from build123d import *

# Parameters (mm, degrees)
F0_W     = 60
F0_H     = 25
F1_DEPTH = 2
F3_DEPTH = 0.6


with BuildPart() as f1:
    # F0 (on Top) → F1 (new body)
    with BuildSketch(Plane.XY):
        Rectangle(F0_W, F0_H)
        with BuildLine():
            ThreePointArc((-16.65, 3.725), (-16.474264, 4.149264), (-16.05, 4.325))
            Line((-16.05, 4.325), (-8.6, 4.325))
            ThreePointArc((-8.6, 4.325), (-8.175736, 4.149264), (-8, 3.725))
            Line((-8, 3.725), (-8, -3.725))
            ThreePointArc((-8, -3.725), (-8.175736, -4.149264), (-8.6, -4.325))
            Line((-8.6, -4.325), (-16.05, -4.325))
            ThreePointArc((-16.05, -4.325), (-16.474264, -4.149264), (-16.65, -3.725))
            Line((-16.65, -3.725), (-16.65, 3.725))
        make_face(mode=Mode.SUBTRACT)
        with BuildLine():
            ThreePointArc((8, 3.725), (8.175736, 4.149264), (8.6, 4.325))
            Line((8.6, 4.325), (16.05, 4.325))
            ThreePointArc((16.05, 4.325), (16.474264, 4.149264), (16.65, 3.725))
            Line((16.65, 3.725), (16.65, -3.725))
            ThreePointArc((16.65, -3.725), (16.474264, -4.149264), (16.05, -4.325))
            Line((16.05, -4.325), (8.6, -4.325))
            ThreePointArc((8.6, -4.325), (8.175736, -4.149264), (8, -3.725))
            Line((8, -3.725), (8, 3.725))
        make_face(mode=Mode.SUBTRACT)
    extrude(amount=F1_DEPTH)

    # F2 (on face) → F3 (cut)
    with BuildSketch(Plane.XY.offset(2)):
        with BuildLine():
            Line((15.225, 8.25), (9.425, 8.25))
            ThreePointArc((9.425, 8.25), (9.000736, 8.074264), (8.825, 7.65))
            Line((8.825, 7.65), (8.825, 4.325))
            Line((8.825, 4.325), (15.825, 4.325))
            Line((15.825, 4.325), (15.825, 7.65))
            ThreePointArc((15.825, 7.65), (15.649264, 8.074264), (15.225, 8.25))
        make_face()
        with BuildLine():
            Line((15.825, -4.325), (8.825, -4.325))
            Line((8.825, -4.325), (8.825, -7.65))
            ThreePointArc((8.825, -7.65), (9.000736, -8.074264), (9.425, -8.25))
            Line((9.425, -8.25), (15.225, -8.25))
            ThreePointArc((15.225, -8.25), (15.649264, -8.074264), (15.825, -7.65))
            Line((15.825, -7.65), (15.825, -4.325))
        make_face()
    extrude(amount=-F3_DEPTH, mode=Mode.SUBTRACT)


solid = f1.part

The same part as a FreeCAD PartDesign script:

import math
import FreeCAD as App
import Part
import Sketcher

V = App.Vector
Q = App.Units.Quantity


def add_polygon(sketch, points):
    """Adds a closed chain of lines whose ends are joined by coincident constraints."""
    first, n = sketch.GeometryCount, len(points)
    for a, b in zip(points, points[1:] + points[:1]):
        sketch.addGeometry(Part.LineSegment(App.Vector(*a, 0), App.Vector(*b, 0)), False)
    for i in range(n):
        sketch.addConstraint(Sketcher.Constraint("Coincident", first + i, 2, first + (i + 1) % n, 1))

doc = App.newDocument("Part")
body = doc.addObject("PartDesign::Body", "Body")

# Sketch on XY plane
sketch1 = body.newObject("Sketcher::SketchObject", "Sketch")
sketch1.AttachmentSupport = (doc.getObject("XY_Plane"), [""])
sketch1.MapMode = "FlatFace"
add_polygon(sketch1, [(-30, 12.5), (-30, -12.5), (30, -12.5), (30, 12.5)])  # lines 0-3
sketch1.addGeometry(Part.LineSegment(V(-16.6, -3.7, 0), V(-16.6, 3.7, 0)), False)  # 4
sketch1.addGeometry(Part.ArcOfCircle(Part.Circle(V(-16, 3.7, 0), V(0, 0, 1), 0.6), math.radians(90), math.radians(180)), False)  # 5
sketch1.addGeometry(Part.LineSegment(V(-16.1, 4.3, 0), V(-8.6, 4.3, 0)), False)  # 6
sketch1.addGeometry(Part.ArcOfCircle(Part.Circle(V(-8.6, 3.7, 0), V(0, 0, 1), 0.6), math.radians(0), math.radians(90)), False)  # 7
sketch1.addGeometry(Part.LineSegment(V(-8, 3.7, 0), V(-8, -3.7, 0)), False)  # 8
sketch1.addGeometry(Part.ArcOfCircle(Part.Circle(V(-8.6, -3.7, 0), V(0, 0, 1), 0.6), math.radians(-90), math.radians(0)), False)  # 9
sketch1.addGeometry(Part.LineSegment(V(-8.6, -4.3, 0), V(-16.1, -4.3, 0)), False)  # 10
sketch1.addGeometry(Part.ArcOfCircle(Part.Circle(V(-16, -3.7, 0), V(0, 0, 1), 0.6), math.radians(-180), math.radians(-90)), False)  # 11
sketch1.addGeometry(Part.LineSegment(V(8, -3.7, 0), V(8, 3.7, 0)), False)  # 12
sketch1.addGeometry(Part.ArcOfCircle(Part.Circle(V(8.6, 3.7, 0), V(0, 0, 1), 0.6), math.radians(90), math.radians(180)), False)  # 13
sketch1.addGeometry(Part.LineSegment(V(8.6, 4.3, 0), V(16.1, 4.3, 0)), False)  # 14
sketch1.addGeometry(Part.ArcOfCircle(Part.Circle(V(16, 3.7, 0), V(0, 0, 1), 0.6), math.radians(0), math.radians(90)), False)  # 15
sketch1.addGeometry(Part.LineSegment(V(16.6, 3.7, 0), V(16.6, -3.7, 0)), False)  # 16
sketch1.addGeometry(Part.ArcOfCircle(Part.Circle(V(16, -3.7, 0), V(0, 0, 1), 0.6), math.radians(-90), math.radians(0)), False)  # 17
sketch1.addGeometry(Part.LineSegment(V(16.1, -4.3, 0), V(8.6, -4.3, 0)), False)  # 18
sketch1.addGeometry(Part.ArcOfCircle(Part.Circle(V(8.6, -3.7, 0), V(0, 0, 1), 0.6), math.radians(-180), math.radians(-90)), False)  # 19
sketch1.addConstraint(Sketcher.Constraint("Tangent", 4, 2, 5, 2))
sketch1.addConstraint(Sketcher.Constraint("Tangent", 5, 1, 6, 1))
sketch1.addConstraint(Sketcher.Constraint("Tangent", 6, 2, 7, 2))
sketch1.addConstraint(Sketcher.Constraint("Tangent", 7, 1, 8, 1))
sketch1.addConstraint(Sketcher.Constraint("Tangent", 8, 2, 9, 2))
sketch1.addConstraint(Sketcher.Constraint("Tangent", 9, 1, 10, 1))
sketch1.addConstraint(Sketcher.Constraint("Tangent", 10, 2, 11, 2))
sketch1.addConstraint(Sketcher.Constraint("Tangent", 11, 1, 4, 1))
sketch1.addConstraint(Sketcher.Constraint("Tangent", 12, 2, 13, 2))
sketch1.addConstraint(Sketcher.Constraint("Tangent", 13, 1, 14, 1))
sketch1.addConstraint(Sketcher.Constraint("Tangent", 14, 2, 15, 2))
sketch1.addConstraint(Sketcher.Constraint("Tangent", 15, 1, 16, 1))
sketch1.addConstraint(Sketcher.Constraint("Tangent", 16, 2, 17, 2))
sketch1.addConstraint(Sketcher.Constraint("Tangent", 17, 1, 18, 1))
sketch1.addConstraint(Sketcher.Constraint("Tangent", 18, 2, 19, 2))
sketch1.addConstraint(Sketcher.Constraint("Tangent", 19, 1, 12, 1))
sketch1.addConstraint(Sketcher.Constraint("Vertical", 0))
sketch1.addConstraint(Sketcher.Constraint("Horizontal", 1))
sketch1.addConstraint(Sketcher.Constraint("Vertical", 2))
sketch1.addConstraint(Sketcher.Constraint("Horizontal", 3))
sketch1.addConstraint(Sketcher.Constraint("Vertical", 4))
sketch1.addConstraint(Sketcher.Constraint("Horizontal", 6))
sketch1.addConstraint(Sketcher.Constraint("Vertical", 8))
sketch1.addConstraint(Sketcher.Constraint("Horizontal", 10))
sketch1.addConstraint(Sketcher.Constraint("Vertical", 12))
sketch1.addConstraint(Sketcher.Constraint("Horizontal", 14))
sketch1.addConstraint(Sketcher.Constraint("Vertical", 16))
sketch1.addConstraint(Sketcher.Constraint("Horizontal", 18))
sketch1.addConstraint(Sketcher.Constraint("Equal", 5, 7))
sketch1.addConstraint(Sketcher.Constraint("Equal", 7, 9))
sketch1.addConstraint(Sketcher.Constraint("Equal", 9, 11))
sketch1.addConstraint(Sketcher.Constraint("Equal", 11, 13))
sketch1.addConstraint(Sketcher.Constraint("Equal", 13, 15))
sketch1.addConstraint(Sketcher.Constraint("Equal", 15, 17))
sketch1.addConstraint(Sketcher.Constraint("Equal", 17, 19))
sketch1.addConstraint(Sketcher.Constraint("Symmetric", 9, 3, 13, 3, -1, 1))
sketch1.addConstraint(Sketcher.Constraint("Symmetric", 5, 3, 17, 3, -1, 1))
sketch1.addConstraint(Sketcher.Constraint("Symmetric", 0, 2, 2, 2, -1, 1))
sketch1.addConstraint(Sketcher.Constraint("Horizontal", 7, 3, 13, 3))
sketch1.addConstraint(Sketcher.Constraint("Equal", 18, 4))
sketch1.addConstraint(Sketcher.Constraint("Radius", 5, Q("0.6 mm")))
sketch1.addConstraint(Sketcher.Constraint("DistanceX", 1, 1, 1, 2, Q("60 mm")))
sketch1.addConstraint(Sketcher.Constraint("DistanceY", 0, 2, 0, 1, Q("25 mm")))
sketch1.addConstraint(Sketcher.Constraint("DistanceX", 7, 1, -1, 1, Q("8 mm")))
sketch1.addConstraint(Sketcher.Constraint("DistanceX", 6, 1, 6, 2, Q("7.45 mm")))
pad1 = body.newObject("PartDesign::Pad", "Pad")
pad1.Profile = sketch1
pad1.Length = 2

# Sketch on XY plane
sketch2 = body.newObject("Sketcher::SketchObject", "Sketch001")
sketch2.AttachmentSupport = (doc.getObject("XY_Plane"), [""])
sketch2.MapMode = "FlatFace"
sketch2.AttachmentOffset = App.Placement(V(0, 0, 2), App.Rotation())
sketch2.addGeometry(Part.LineSegment(V(15.2, 8.2, 0), V(9.4, 8.2, 0)), False)
sketch2.addGeometry(Part.ArcOfCircle(Part.Circle(V(9.4, 7.6, 0), V(0, 0, 1), 0.6), math.radians(90), math.radians(180)), False)
sketch2.addGeometry(Part.LineSegment(V(8.8, 7.7, 0), V(8.8, 4.3, 0)), False)
sketch2.addGeometry(Part.LineSegment(V(8.8, 4.3, 0), V(15.8, 4.3, 0)), False)
sketch2.addGeometry(Part.LineSegment(V(15.8, 4.3, 0), V(15.8, 7.7, 0)), False)
sketch2.addGeometry(Part.ArcOfCircle(Part.Circle(V(15.2, 7.6, 0), V(0, 0, 1), 0.6), math.radians(0), math.radians(90)), False)
sketch2.addGeometry(Part.LineSegment(V(15.8, -4.3, 0), V(8.8, -4.3, 0)), False)
sketch2.addGeometry(Part.LineSegment(V(8.8, -4.3, 0), V(8.8, -7.7, 0)), False)
sketch2.addGeometry(Part.ArcOfCircle(Part.Circle(V(9.4, -7.6, 0), V(0, 0, 1), 0.6), math.radians(-180), math.radians(-90)), False)
sketch2.addGeometry(Part.LineSegment(V(9.4, -8.2, 0), V(15.2, -8.2, 0)), False)
sketch2.addGeometry(Part.ArcOfCircle(Part.Circle(V(15.2, -7.6, 0), V(0, 0, 1), 0.6), math.radians(-90), math.radians(0)), False)
sketch2.addGeometry(Part.LineSegment(V(15.8, -7.7, 0), V(15.8, -4.3, 0)), False)
sketch2.addConstraint(Sketcher.Constraint("Tangent", 0, 2, 1, 1))
sketch2.addConstraint(Sketcher.Constraint("Tangent", 1, 2, 2, 1))
sketch2.addConstraint(Sketcher.Constraint("Coincident", 2, 2, 3, 1))
sketch2.addConstraint(Sketcher.Constraint("Coincident", 3, 2, 4, 1))
sketch2.addConstraint(Sketcher.Constraint("Tangent", 4, 2, 5, 1))
sketch2.addConstraint(Sketcher.Constraint("Tangent", 5, 2, 0, 1))
sketch2.addConstraint(Sketcher.Constraint("Coincident", 6, 2, 7, 1))
sketch2.addConstraint(Sketcher.Constraint("Tangent", 7, 2, 8, 1))
sketch2.addConstraint(Sketcher.Constraint("Tangent", 8, 2, 9, 1))
sketch2.addConstraint(Sketcher.Constraint("Tangent", 9, 2, 10, 1))
sketch2.addConstraint(Sketcher.Constraint("Tangent", 10, 2, 11, 1))
sketch2.addConstraint(Sketcher.Constraint("Coincident", 11, 2, 6, 1))
sketch2.addConstraint(Sketcher.Constraint("Horizontal", 0))
sketch2.addConstraint(Sketcher.Constraint("Vertical", 2))
sketch2.addConstraint(Sketcher.Constraint("Horizontal", 3))
sketch2.addConstraint(Sketcher.Constraint("Vertical", 4))
sketch2.addConstraint(Sketcher.Constraint("Horizontal", 6))
sketch2.addConstraint(Sketcher.Constraint("Vertical", 7))
sketch2.addConstraint(Sketcher.Constraint("Horizontal", 9))
sketch2.addConstraint(Sketcher.Constraint("Vertical", 11))
sketch2.addConstraint(Sketcher.Constraint("Equal", 1, 5))
sketch2.addConstraint(Sketcher.Constraint("Equal", 5, 8))
sketch2.addConstraint(Sketcher.Constraint("Equal", 8, 10))
sketch2.addConstraint(Sketcher.Constraint("Symmetric", 1, 3, 8, 3, -1))
sketch2.addConstraint(Sketcher.Constraint("Symmetric", 3, 2, 11, 2, -1))
sketch2.addConstraint(Sketcher.Constraint("Radius", 1, Q("0.6 mm")))
sketch2.addConstraint(Sketcher.Constraint("DistanceX", 3, 1, 3, 2, Q("7 mm")))
sketch2.addConstraint(Sketcher.Constraint("DistanceY", 8, 3, 1, 3, Q("15.3 mm")))
sketch2.addConstraint(Sketcher.Constraint("DistanceY", 2, 2, 2, 1, Q("3.325 mm")))
sketch2.addConstraint(Sketcher.Constraint("DistanceX", -1, 1, 1, 3, Q("9.425 mm")))
pocket1 = body.newObject("PartDesign::Pocket", "Pocket")
pocket1.Profile = sketch2
pocket1.Length = 0.6

doc.recompute()
